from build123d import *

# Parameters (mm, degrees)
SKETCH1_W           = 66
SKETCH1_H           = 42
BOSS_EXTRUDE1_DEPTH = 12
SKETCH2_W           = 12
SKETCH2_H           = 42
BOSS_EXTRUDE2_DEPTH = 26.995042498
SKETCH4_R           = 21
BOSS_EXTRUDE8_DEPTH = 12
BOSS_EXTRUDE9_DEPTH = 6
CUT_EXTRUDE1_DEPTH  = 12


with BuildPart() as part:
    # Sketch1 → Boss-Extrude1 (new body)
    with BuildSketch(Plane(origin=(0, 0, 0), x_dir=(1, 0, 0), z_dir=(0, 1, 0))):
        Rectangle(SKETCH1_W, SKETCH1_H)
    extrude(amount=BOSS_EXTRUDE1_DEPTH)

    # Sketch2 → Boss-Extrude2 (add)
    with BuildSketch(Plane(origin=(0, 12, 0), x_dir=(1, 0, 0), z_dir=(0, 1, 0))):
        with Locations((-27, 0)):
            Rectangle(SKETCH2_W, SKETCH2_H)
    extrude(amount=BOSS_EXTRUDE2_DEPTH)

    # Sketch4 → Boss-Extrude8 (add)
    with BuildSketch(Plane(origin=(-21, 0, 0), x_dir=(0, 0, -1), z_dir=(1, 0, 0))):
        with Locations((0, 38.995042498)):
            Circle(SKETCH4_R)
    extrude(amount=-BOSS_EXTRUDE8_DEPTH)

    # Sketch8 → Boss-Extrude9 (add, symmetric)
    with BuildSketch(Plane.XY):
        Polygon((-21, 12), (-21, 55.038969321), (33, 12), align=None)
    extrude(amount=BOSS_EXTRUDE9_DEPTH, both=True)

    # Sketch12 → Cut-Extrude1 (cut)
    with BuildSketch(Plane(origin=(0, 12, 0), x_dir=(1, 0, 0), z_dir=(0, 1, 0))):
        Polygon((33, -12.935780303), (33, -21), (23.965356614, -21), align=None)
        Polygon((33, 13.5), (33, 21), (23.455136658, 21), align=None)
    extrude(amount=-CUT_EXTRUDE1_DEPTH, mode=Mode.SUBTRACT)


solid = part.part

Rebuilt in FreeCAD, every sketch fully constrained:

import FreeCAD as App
import Part
import Sketcher


def add_polygon(sketch, points):
    """Adds a closed chain of lines whose ends are joined by coincident constraints."""
    first, n = sketch.GeometryCount, len(points)
    for a, b in zip(points, points[1:] + points[:1]):
        sketch.addGeometry(Part.LineSegment(App.Vector(*a, 0), App.Vector(*b, 0)), False)
    for i in range(n):
        sketch.addConstraint(Sketcher.Constraint("Coincident", first + i, 2, first + (i + 1) % n, 1))

doc = App.newDocument("Part")
params = doc.addObject("Spreadsheet::Sheet", "Params")
for row, (alias, value) in enumerate([
    ("sketch1_width", "66 mm"),
    ("sketch1_height", "42 mm"),
    ("pad1_length", "12 mm"),
    ("sketch2_width", "12 mm"),
    ("sketch2_height", "42 mm"),
    ("pad2_length", "26.995042 mm"),
    ("sketch3_diameter", "42 mm"),
    ("pad3_length", "12 mm"),
    ("sketch4_width", "54 mm"),
    ("pad4_length", "12 mm"),
    ("sketch5_height", "7.5 mm"),
    ("pocket1_length", "12 mm"),
], start=1):
    params.set(f"A{row}", alias)
    params.set(f"B{row}", "=" + value)
    params.setAlias(f"B{row}", alias)

body = doc.addObject("PartDesign::Body", "Body")

# Sketch on XZ plane
sketch1 = doc.addObject("Sketcher::SketchObject", "Sketch")
body.addObject(sketch1)
sketch1.AttachmentSupport = (doc.XZ_Plane, [""])
sketch1.MapMode = "FlatFace"
add_polygon(sketch1, [(-33, -21), (-33, 21), (33, 21), (33, -21)])  # lines 0-3
sketch1.addConstraint([
    Sketcher.Constraint("Vertical", 0),
    Sketcher.Constraint("Horizontal", 1),
    Sketcher.Constraint("Vertical", 2),
    Sketcher.Constraint("Horizontal", 3),
    Sketcher.Constraint("Symmetric", 0, 2, 2, 2, -1, 1),
    Sketcher.Constraint("DistanceX", 1, 1, 1, 2, 66.0),
    Sketcher.Constraint("DistanceY", 0, 1, 0, 2, 42.0),
])
sketch1.setExpression("Constraints[9]", "Params.sketch1_width")
sketch1.setExpression("Constraints[10]", "Params.sketch1_height")
pad1 = doc.addObject("PartDesign::Pad", "Pad")
body.addObject(pad1)
pad1.Profile = sketch1
pad1.setExpression("Length", "Params.pad1_length")
pad1.Reversed = True

# Sketch on XZ plane
sketch2 = doc.addObject("Sketcher::SketchObject", "Sketch001")
body.addObject(sketch2)
sketch2.AttachmentSupport = (doc.XZ_Plane, [""])
sketch2.MapMode = "FlatFace"
sketch2.AttachmentOffset = App.Placement(App.Vector(0, 0, -12), App.Rotation())
add_polygon(sketch2, [(-33, -21), (-33, 21), (-21, 21), (-21, -21)])  # lines 0-3
sketch2.addConstraint([
    Sketcher.Constraint("Vertical", 0),
    Sketcher.Constraint("Horizontal", 1),
    Sketcher.Constraint("Vertical", 2),
    Sketcher.Constraint("Horizontal", 3),
    Sketcher.Constraint("DistanceX", 1, 1, 1, 2, 12.0),
    Sketcher.Constraint("DistanceY", 0, 1, 0, 2, 42.0),
    Sketcher.Constraint("DistanceX", 0, 2, -1, 1, 33.0),
    Sketcher.Constraint("DistanceY", -1, 1, 0, 2, 21.0),
])
sketch2.setExpression("Constraints[8]", "Params.sketch2_width")
sketch2.setExpression("Constraints[9]", "Params.sketch2_height")
pad2 = doc.addObject("PartDesign::Pad", "Pad001")
body.addObject(pad2)
pad2.Profile = sketch2
pad2.setExpression("Length", "Params.pad2_length")
pad2.Reversed = True

# Sketch on YZ plane
sketch3 = doc.addObject("Sketcher::SketchObject", "Sketch002")
body.addObject(sketch3)
sketch3.AttachmentSupport = (doc.YZ_Plane, [""])
sketch3.MapMode = "FlatFace"
sketch3.AttachmentOffset = App.Placement(App.Vector(0, 0, -21), App.Rotation())
sketch3.addGeometry(Part.Circle(App.Vector(39, 0, 0), App.Vector(0, 0, 1), 21), False)
sketch3.addConstraint([
    Sketcher.Constraint("PointOnObject", 0, 3, -1),
    Sketcher.Constraint("Diameter", 0, 42.0),
    Sketcher.Constraint("DistanceX", -1, 1, 0, 3, 38.995042),
])
sketch3.setExpression("Constraints[1]", "Params.sketch3_diameter")
pad3 = doc.addObject("PartDesign::Pad", "Pad002")
body.addObject(pad3)
pad3.Profile = sketch3
pad3.setExpression("Length", "Params.pad3_length")
pad3.Reversed = True

# Sketch on XY plane
sketch4 = doc.addObject("Sketcher::SketchObject", "Sketch003")
body.addObject(sketch4)
sketch4.AttachmentSupport = (doc.XY_Plane, [""])
sketch4.MapMode = "FlatFace"
add_polygon(sketch4, [(-21, 55), (-21, 12), (33, 12)])  # lines 0-2
sketch4.addConstraint([
    Sketcher.Constraint("Vertical", 0),
    Sketcher.Constraint("Horizontal", 1),
    Sketcher.Constraint("DistanceX", 1, 1, 1, 2, 54.0),
    Sketcher.Constraint("DistanceX", 0, 2, -1, 1, 21.0),
    Sketcher.Constraint("DistanceY", -1, 1, 0, 2, 12.0),
    Sketcher.Constraint("DistanceY", 0, 2, 0, 1, 43.038969),
])
sketch4.setExpression("Constraints[5]", "Params.sketch4_width")
pad4 = doc.addObject("PartDesign::Pad", "Pad003")
body.addObject(pad4)
pad4.Profile = sketch4
pad4.setExpression("Length", "Params.pad4_length")
pad4.Midplane = True

# Sketch on XZ plane
sketch5 = doc.addObject("Sketcher::SketchObject", "Sketch004")
body.addObject(sketch5)
sketch5.AttachmentSupport = (doc.XZ_Plane, [""])
sketch5.MapMode = "FlatFace"
sketch5.AttachmentOffset = App.Placement(App.Vector(0, 0, -12), App.Rotation())
add_polygon(sketch5, [(33, 21), (33, 13), (24, 21)])  # lines 0-2
add_polygon(sketch5, [(33, -14), (33, -21), (23, -21)])  # lines 3-5
sketch5.addConstraint([
    Sketcher.Constraint("Vertical", 0),
    Sketcher.Constraint("Horizontal", 2),
    Sketcher.Constraint("Vertical", 3),
    Sketcher.Constraint("Horizontal", 4),
    Sketcher.Constraint("Symmetric", 2, 2, 3, 2, -1),
    Sketcher.Constraint("DistanceY", 3, 2, 3, 1, 7.5),
    Sketcher.Constraint("DistanceX", -1, 1, 0, 2, 33.0),
    Sketcher.Constraint("DistanceY", -1, 1, 1, 2, 21.0),
    Sketcher.Constraint("DistanceY", 0, 2, 0, 1, 8.06422),
    Sketcher.Constraint("Distance", 1, 12.110178),
    Sketcher.Constraint("DistanceX", 4, 2, 4, 1, 9.544863),
])
sketch5.setExpression("Constraints[11]", "Params.sketch5_height")
pocket1 = doc.addObject("PartDesign::Pocket", "Pocket")
body.addObject(pocket1)
pocket1.Profile = sketch5
pocket1.setExpression("Length", "Params.pocket1_length")
pocket1.Reversed = True

doc.recompute()
